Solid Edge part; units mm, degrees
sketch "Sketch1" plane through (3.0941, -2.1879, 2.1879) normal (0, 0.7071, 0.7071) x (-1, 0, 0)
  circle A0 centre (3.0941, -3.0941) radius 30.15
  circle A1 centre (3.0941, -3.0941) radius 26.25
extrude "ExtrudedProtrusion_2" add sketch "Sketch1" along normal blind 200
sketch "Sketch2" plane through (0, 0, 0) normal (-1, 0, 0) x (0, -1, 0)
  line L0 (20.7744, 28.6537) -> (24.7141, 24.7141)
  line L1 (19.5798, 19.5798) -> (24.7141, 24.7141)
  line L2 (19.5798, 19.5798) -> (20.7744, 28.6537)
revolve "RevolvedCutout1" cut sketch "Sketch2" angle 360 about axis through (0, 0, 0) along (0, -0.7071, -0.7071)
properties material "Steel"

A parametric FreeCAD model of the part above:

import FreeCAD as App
import Part
import Sketcher
from FreeCAD import Vector
Q = App.Units.Quantity

doc = App.newDocument("Part")
body = doc.addObject("PartDesign::Body", "Body")

sketch1 = body.newObject("Sketcher::SketchObject", "Sketch")
sketch1.Placement = App.Placement(Vector(3.0941, -2.1879, 2.1879), App.Rotation(Vector(-1, 0, 0), Vector(0, -0.707106781, 0.707106781), Vector(0, 0.707106781, 0.707106781), "ZXY"))
sketch1.addGeometry([
    Part.Circle(Vector(3.0941, -3.0941, 0), Vector(0, 0, 1), 30.15),
    Part.Circle(Vector(3.0941, -3.0941, 0), Vector(0, 0, 1), 26.25),
], False)
sketch1.addConstraint([
    Sketcher.Constraint("Coincident", 1, 3, 0, 3),
    Sketcher.Constraint("Diameter", 0, Q("60.3 mm")),
    Sketcher.Constraint("Diameter", 1, Q("52.5 mm")),
    Sketcher.Constraint("DistanceX", -1, 1, 0, 3, Q("3.094 mm")),
    Sketcher.Constraint("DistanceY", 0, 3, -1, 1, Q("3.094 mm")),
])
pad1 = body.newObject("PartDesign::Pad", "Pad")
pad1.Profile = sketch1
pad1.Length = 200

sketch2 = body.newObject("Sketcher::SketchObject", "Sketch001")
sketch2.AttachmentSupport = (doc.getObject("YZ_Plane"), [""])
sketch2.MapMode = "FlatFace"
sketch2.addGeometry([
    Part.LineSegment(Vector(-24.7141, 24.7141, 0), Vector(-20.7744, 28.6537, 0)),
    Part.LineSegment(Vector(-20.7744, 28.6537, 0), Vector(-19.5798, 19.5798, 0)),
    Part.LineSegment(Vector(-19.5798, 19.5798, 0), Vector(-24.7141, 24.7141, 0)),
], False)
sketch2.addGeometry(Part.LineSegment(Vector(3.93965, 3.93965, 0), Vector(0, 0, 0)), True)
sketch2.addConstraint([
    Sketcher.Constraint("Coincident", 0, 2, 1, 1),
    Sketcher.Constraint("Coincident", 1, 2, 2, 1),
    Sketcher.Constraint("Coincident", 2, 2, 0, 1),
    Sketcher.Constraint("Coincident", 3, 2, -1, 1),
    Sketcher.Constraint("Perpendicular", 0, 2),
    Sketcher.Constraint("Perpendicular", 2, 3),
    Sketcher.Constraint("Equal", 0, 3),
    Sketcher.Constraint("Angle", 0, Q("44.9993 deg")),
    Sketcher.Constraint("Angle", 1, Q("-82.5 deg")),
    Sketcher.Constraint("Distance", 2, Q("7.261 mm")),
    Sketcher.Constraint("DistanceX", 2, 2, -1, 1, Q("24.714 mm")),
    Sketcher.Constraint("DistanceY", -1, 1, 2, 2, Q("24.714 mm")),
])
groove = body.newObject("PartDesign::Groove", "Groove")
groove.Profile = sketch2
groove.ReferenceAxis = (sketch2, ["Axis0"])
groove.Angle = 360

doc.recompute()
